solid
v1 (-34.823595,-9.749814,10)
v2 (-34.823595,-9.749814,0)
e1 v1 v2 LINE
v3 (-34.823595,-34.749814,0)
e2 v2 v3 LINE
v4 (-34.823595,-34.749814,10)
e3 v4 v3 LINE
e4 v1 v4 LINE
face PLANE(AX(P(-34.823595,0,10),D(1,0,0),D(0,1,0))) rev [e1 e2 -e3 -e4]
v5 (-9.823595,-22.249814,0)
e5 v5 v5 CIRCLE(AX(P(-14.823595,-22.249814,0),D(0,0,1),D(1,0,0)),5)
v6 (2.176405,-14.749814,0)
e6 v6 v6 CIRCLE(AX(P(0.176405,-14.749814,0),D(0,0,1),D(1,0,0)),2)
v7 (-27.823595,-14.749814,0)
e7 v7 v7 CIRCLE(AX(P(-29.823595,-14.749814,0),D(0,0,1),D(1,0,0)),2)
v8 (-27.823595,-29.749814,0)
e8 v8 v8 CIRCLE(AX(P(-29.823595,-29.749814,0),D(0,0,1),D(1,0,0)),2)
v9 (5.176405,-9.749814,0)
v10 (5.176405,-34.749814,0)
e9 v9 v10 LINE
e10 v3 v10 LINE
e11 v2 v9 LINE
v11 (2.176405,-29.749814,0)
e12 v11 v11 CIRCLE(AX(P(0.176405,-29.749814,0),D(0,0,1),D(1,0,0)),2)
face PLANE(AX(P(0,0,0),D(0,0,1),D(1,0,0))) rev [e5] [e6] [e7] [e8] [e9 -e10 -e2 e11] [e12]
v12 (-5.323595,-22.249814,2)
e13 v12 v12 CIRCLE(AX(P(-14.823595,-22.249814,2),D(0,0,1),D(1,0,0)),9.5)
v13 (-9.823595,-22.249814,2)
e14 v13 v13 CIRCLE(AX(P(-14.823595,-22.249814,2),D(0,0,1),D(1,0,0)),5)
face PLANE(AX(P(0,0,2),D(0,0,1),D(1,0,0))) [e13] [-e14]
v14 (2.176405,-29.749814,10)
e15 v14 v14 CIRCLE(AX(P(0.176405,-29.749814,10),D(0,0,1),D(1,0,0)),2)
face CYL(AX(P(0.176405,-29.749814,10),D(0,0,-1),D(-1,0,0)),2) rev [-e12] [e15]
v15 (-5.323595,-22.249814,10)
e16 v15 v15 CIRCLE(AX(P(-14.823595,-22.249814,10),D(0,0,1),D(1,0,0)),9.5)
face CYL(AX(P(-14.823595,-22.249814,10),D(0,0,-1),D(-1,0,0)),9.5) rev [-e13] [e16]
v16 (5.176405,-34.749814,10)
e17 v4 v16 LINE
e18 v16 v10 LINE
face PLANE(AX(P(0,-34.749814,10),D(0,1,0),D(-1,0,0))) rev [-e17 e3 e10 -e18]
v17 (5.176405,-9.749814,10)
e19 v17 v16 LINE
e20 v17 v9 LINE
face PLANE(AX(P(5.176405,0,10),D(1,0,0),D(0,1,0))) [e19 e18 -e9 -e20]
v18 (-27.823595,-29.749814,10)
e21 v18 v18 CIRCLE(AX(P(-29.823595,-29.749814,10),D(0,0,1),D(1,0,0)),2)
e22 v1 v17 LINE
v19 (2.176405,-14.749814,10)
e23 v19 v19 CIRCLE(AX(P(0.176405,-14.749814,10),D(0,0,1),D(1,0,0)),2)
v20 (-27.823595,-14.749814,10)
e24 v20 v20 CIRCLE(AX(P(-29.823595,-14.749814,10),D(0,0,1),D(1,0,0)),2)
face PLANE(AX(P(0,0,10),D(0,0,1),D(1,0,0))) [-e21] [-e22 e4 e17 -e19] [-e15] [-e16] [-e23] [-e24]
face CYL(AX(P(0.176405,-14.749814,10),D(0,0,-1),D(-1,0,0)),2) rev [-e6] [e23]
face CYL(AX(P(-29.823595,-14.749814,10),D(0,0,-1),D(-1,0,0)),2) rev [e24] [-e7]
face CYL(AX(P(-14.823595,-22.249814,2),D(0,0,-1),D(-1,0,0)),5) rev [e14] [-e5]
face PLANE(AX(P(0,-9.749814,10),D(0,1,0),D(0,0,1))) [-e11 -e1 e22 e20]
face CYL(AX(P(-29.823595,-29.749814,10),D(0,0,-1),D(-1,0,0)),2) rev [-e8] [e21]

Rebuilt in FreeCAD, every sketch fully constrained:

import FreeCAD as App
import Part
import Sketcher

V = App.Vector
Q = App.Units.Quantity


def add_polygon(sketch, points):
    """Adds a closed chain of lines whose ends are joined by coincident constraints."""
    first, n = sketch.GeometryCount, len(points)
    for a, b in zip(points, points[1:] + points[:1]):
        sketch.addGeometry(Part.LineSegment(App.Vector(*a, 0), App.Vector(*b, 0)), False)
    for i in range(n):
        sketch.addConstraint(Sketcher.Constraint("Coincident", first + i, 2, first + (i + 1) % n, 1))

doc = App.newDocument("Part")
body = doc.addObject("PartDesign::Body", "Body")

# Sketch on XY plane
sketch1 = doc.addObject("Sketcher::SketchObject", "Sketch")
body.addObject(sketch1)
sketch1.AttachmentSupport = (doc.XY_Plane, [""])
sketch1.MapMode = "FlatFace"
add_polygon(sketch1, [(-34.8, -9.7), (-34.8, -34.7), (5.2, -34.7), (5.2, -9.7)])  # lines 0-3
sketch1.addGeometry(Part.Circle(V(-29.8, -29.7, 0), V(0, 0, 1), 2), False)  # 4
sketch1.addGeometry(Part.Circle(V(0.2, -29.7, 0), V(0, 0, 1), 2), False)  # 5
sketch1.addGeometry(Part.Circle(V(-29.8, -14.7, 0), V(0, 0, 1), 2), False)  # 6
sketch1.addGeometry(Part.Circle(V(-14.8, -22.2, 0), V(0, 0, 1), 9.5), False)  # 7
sketch1.addGeometry(Part.Circle(V(0.2, -14.7, 0), V(0, 0, 1), 2), False)  # 8
sketch1.addConstraint(Sketcher.Constraint("Vertical", 0))
sketch1.addConstraint(Sketcher.Constraint("Horizontal", 1))
sketch1.addConstraint(Sketcher.Constraint("Vertical", 2))
sketch1.addConstraint(Sketcher.Constraint("Horizontal", 3))
sketch1.addConstraint(Sketcher.Constraint("Equal", 4, 5))
sketch1.addConstraint(Sketcher.Constraint("Equal", 5, 6))
sketch1.addConstraint(Sketcher.Constraint("Equal", 6, 8))
sketch1.addConstraint(Sketcher.Constraint("Horizontal", 4, 3, 5, 3))
sketch1.addConstraint(Sketcher.Constraint("Horizontal", 6, 3, 8, 3))
sketch1.addConstraint(Sketcher.Constraint("Vertical", 4, 3, 6, 3))
sketch1.addConstraint(Sketcher.Constraint("Vertical", 5, 3, 8, 3))
sketch1.addConstraint(Sketcher.Constraint("Diameter", 4, Q("4 mm")))
sketch1.addConstraint(Sketcher.Constraint("Diameter", 7, Q("19 mm")))
sketch1.addConstraint(Sketcher.Constraint("DistanceX", 1, 1, 1, 2, Q("40 mm")))
sketch1.addConstraint(Sketcher.Constraint("DistanceY", 0, 2, 0, 1, Q("25 mm")))
sketch1.addConstraint(Sketcher.Constraint("DistanceX", 4, 3, 5, 3, Q("30 mm")))
sketch1.addConstraint(Sketcher.Constraint("DistanceY", 4, 3, 6, 3, Q("15 mm")))
sketch1.addConstraint(Sketcher.Constraint("DistanceX", 7, 3, 5, 3, Q("15 mm")))
sketch1.addConstraint(Sketcher.Constraint("DistanceX", 0, 2, 4, 3, Q("5 mm")))
sketch1.addConstraint(Sketcher.Constraint("DistanceY", 0, 2, 4, 3, Q("5 mm")))
sketch1.addConstraint(Sketcher.Constraint("DistanceY", 5, 3, 7, 3, Q("7.5 mm")))
sketch1.addConstraint(Sketcher.Constraint("DistanceX", 4, 3, -1, 1, Q("29.823595 mm")))
sketch1.addConstraint(Sketcher.Constraint("DistanceY", 4, 3, -1, 1, Q("29.749814 mm")))
pad1 = doc.addObject("PartDesign::Pad", "Pad")
body.addObject(pad1)
pad1.Profile = sketch1
pad1.Length = 10

# Sketch on XY plane
sketch2 = doc.addObject("Sketcher::SketchObject", "Sketch001")
body.addObject(sketch2)
sketch2.AttachmentSupport = (doc.XY_Plane, [""])
sketch2.MapMode = "FlatFace"
sketch2.addGeometry(Part.Circle(V(-15, -22, 0), V(0, 0, 1), 10), False)
sketch2.addGeometry(Part.Circle(V(-15, -22, 0), V(0, 0, 1), 5), False)
sketch2.addConstraint(Sketcher.Constraint("Coincident", 1, 3, 0, 3))
sketch2.addConstraint(Sketcher.Constraint("Diameter", 0, Q("19 mm")))
sketch2.addConstraint(Sketcher.Constraint("Diameter", 1, Q("10 mm")))
sketch2.addConstraint(Sketcher.Constraint("DistanceX", 0, 3, -1, 1, Q("14.823595 mm")))
sketch2.addConstraint(Sketcher.Constraint("DistanceY", 0, 3, -1, 1, Q("22.249814 mm")))
pad2 = doc.addObject("PartDesign::Pad", "Pad001")
body.addObject(pad2)
pad2.Profile = sketch2
pad2.Length = 2

doc.recompute()
